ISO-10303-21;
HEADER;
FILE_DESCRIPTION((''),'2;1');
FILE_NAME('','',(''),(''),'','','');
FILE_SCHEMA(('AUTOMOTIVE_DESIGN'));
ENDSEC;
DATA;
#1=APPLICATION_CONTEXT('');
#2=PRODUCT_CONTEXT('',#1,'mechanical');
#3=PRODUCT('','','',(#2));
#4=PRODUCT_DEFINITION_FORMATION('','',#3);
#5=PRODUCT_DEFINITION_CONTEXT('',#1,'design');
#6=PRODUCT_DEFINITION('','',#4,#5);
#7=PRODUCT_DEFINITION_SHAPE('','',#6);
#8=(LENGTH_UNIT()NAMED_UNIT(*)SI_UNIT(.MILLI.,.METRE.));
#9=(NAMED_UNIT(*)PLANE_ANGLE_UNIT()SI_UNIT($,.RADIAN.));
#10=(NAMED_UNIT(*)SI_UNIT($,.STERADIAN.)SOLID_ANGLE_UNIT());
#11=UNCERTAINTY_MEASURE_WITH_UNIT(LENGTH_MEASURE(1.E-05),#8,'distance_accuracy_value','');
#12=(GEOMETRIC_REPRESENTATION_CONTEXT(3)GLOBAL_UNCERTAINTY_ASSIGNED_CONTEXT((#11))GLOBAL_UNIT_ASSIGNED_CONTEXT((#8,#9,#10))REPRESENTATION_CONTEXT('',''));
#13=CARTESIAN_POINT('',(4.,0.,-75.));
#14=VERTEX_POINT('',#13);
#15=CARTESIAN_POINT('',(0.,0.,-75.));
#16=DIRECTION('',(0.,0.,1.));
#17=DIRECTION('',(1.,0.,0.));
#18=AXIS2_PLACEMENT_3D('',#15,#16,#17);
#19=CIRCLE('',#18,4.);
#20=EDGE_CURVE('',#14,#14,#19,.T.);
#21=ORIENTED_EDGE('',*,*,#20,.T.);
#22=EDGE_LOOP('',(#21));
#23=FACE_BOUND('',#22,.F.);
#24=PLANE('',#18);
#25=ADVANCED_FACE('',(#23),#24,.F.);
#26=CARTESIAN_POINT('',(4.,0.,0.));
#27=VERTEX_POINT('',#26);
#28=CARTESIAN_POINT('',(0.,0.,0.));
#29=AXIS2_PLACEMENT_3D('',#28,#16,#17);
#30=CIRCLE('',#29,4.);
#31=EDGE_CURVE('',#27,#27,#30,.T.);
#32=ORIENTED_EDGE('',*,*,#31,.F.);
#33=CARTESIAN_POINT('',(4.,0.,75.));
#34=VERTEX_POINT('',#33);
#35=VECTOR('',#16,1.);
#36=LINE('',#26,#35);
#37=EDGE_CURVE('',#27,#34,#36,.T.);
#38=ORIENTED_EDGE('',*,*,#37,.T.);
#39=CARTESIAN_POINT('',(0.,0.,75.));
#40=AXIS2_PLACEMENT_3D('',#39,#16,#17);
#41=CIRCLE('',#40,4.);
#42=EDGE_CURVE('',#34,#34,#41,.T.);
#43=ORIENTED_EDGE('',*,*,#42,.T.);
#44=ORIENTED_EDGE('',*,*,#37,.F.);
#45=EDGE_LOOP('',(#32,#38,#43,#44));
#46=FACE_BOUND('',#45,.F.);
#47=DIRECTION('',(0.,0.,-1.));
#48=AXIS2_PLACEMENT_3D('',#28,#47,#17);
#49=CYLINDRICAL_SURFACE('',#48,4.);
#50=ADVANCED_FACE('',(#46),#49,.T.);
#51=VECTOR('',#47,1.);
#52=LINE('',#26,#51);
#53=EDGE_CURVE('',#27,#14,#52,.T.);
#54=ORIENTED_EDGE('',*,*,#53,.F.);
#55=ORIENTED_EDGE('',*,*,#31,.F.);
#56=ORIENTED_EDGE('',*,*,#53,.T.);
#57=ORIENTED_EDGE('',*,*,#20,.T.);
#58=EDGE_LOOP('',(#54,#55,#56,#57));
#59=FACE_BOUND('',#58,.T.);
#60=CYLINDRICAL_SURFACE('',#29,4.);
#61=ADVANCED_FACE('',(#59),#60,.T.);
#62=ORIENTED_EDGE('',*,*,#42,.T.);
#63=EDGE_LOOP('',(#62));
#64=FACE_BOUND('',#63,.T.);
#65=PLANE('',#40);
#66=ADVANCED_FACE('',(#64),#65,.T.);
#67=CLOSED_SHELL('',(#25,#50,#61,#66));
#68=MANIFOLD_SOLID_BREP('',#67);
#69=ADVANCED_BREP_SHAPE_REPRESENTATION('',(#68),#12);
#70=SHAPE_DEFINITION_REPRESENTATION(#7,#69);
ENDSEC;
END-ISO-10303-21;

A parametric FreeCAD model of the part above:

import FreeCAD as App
import Part
import Sketcher
Q = App.Units.Quantity

doc = App.newDocument("Part")
body = doc.addObject("PartDesign::Body", "Body")

sketch1 = doc.addObject("Sketcher::SketchObject", "Sketch")
body.addObject(sketch1)
sketch1.AttachmentSupport = (doc.XY_Plane, [""])
sketch1.MapMode = "FlatFace"
sketch1.addGeometry(Part.Circle(App.Vector(0, 0, 0), App.Vector(0, 0, 1), 4), False)
sketch1.addConstraint([
    Sketcher.Constraint("Coincident", 0, 3, -1, 1),
    Sketcher.Constraint("Diameter", 0, Q("8 mm")),
])
pad1 = doc.addObject("PartDesign::Pad", "Pad")
body.addObject(pad1)
pad1.Profile = sketch1
pad1.Length = 150
pad1.Midplane = True

doc.recompute()
